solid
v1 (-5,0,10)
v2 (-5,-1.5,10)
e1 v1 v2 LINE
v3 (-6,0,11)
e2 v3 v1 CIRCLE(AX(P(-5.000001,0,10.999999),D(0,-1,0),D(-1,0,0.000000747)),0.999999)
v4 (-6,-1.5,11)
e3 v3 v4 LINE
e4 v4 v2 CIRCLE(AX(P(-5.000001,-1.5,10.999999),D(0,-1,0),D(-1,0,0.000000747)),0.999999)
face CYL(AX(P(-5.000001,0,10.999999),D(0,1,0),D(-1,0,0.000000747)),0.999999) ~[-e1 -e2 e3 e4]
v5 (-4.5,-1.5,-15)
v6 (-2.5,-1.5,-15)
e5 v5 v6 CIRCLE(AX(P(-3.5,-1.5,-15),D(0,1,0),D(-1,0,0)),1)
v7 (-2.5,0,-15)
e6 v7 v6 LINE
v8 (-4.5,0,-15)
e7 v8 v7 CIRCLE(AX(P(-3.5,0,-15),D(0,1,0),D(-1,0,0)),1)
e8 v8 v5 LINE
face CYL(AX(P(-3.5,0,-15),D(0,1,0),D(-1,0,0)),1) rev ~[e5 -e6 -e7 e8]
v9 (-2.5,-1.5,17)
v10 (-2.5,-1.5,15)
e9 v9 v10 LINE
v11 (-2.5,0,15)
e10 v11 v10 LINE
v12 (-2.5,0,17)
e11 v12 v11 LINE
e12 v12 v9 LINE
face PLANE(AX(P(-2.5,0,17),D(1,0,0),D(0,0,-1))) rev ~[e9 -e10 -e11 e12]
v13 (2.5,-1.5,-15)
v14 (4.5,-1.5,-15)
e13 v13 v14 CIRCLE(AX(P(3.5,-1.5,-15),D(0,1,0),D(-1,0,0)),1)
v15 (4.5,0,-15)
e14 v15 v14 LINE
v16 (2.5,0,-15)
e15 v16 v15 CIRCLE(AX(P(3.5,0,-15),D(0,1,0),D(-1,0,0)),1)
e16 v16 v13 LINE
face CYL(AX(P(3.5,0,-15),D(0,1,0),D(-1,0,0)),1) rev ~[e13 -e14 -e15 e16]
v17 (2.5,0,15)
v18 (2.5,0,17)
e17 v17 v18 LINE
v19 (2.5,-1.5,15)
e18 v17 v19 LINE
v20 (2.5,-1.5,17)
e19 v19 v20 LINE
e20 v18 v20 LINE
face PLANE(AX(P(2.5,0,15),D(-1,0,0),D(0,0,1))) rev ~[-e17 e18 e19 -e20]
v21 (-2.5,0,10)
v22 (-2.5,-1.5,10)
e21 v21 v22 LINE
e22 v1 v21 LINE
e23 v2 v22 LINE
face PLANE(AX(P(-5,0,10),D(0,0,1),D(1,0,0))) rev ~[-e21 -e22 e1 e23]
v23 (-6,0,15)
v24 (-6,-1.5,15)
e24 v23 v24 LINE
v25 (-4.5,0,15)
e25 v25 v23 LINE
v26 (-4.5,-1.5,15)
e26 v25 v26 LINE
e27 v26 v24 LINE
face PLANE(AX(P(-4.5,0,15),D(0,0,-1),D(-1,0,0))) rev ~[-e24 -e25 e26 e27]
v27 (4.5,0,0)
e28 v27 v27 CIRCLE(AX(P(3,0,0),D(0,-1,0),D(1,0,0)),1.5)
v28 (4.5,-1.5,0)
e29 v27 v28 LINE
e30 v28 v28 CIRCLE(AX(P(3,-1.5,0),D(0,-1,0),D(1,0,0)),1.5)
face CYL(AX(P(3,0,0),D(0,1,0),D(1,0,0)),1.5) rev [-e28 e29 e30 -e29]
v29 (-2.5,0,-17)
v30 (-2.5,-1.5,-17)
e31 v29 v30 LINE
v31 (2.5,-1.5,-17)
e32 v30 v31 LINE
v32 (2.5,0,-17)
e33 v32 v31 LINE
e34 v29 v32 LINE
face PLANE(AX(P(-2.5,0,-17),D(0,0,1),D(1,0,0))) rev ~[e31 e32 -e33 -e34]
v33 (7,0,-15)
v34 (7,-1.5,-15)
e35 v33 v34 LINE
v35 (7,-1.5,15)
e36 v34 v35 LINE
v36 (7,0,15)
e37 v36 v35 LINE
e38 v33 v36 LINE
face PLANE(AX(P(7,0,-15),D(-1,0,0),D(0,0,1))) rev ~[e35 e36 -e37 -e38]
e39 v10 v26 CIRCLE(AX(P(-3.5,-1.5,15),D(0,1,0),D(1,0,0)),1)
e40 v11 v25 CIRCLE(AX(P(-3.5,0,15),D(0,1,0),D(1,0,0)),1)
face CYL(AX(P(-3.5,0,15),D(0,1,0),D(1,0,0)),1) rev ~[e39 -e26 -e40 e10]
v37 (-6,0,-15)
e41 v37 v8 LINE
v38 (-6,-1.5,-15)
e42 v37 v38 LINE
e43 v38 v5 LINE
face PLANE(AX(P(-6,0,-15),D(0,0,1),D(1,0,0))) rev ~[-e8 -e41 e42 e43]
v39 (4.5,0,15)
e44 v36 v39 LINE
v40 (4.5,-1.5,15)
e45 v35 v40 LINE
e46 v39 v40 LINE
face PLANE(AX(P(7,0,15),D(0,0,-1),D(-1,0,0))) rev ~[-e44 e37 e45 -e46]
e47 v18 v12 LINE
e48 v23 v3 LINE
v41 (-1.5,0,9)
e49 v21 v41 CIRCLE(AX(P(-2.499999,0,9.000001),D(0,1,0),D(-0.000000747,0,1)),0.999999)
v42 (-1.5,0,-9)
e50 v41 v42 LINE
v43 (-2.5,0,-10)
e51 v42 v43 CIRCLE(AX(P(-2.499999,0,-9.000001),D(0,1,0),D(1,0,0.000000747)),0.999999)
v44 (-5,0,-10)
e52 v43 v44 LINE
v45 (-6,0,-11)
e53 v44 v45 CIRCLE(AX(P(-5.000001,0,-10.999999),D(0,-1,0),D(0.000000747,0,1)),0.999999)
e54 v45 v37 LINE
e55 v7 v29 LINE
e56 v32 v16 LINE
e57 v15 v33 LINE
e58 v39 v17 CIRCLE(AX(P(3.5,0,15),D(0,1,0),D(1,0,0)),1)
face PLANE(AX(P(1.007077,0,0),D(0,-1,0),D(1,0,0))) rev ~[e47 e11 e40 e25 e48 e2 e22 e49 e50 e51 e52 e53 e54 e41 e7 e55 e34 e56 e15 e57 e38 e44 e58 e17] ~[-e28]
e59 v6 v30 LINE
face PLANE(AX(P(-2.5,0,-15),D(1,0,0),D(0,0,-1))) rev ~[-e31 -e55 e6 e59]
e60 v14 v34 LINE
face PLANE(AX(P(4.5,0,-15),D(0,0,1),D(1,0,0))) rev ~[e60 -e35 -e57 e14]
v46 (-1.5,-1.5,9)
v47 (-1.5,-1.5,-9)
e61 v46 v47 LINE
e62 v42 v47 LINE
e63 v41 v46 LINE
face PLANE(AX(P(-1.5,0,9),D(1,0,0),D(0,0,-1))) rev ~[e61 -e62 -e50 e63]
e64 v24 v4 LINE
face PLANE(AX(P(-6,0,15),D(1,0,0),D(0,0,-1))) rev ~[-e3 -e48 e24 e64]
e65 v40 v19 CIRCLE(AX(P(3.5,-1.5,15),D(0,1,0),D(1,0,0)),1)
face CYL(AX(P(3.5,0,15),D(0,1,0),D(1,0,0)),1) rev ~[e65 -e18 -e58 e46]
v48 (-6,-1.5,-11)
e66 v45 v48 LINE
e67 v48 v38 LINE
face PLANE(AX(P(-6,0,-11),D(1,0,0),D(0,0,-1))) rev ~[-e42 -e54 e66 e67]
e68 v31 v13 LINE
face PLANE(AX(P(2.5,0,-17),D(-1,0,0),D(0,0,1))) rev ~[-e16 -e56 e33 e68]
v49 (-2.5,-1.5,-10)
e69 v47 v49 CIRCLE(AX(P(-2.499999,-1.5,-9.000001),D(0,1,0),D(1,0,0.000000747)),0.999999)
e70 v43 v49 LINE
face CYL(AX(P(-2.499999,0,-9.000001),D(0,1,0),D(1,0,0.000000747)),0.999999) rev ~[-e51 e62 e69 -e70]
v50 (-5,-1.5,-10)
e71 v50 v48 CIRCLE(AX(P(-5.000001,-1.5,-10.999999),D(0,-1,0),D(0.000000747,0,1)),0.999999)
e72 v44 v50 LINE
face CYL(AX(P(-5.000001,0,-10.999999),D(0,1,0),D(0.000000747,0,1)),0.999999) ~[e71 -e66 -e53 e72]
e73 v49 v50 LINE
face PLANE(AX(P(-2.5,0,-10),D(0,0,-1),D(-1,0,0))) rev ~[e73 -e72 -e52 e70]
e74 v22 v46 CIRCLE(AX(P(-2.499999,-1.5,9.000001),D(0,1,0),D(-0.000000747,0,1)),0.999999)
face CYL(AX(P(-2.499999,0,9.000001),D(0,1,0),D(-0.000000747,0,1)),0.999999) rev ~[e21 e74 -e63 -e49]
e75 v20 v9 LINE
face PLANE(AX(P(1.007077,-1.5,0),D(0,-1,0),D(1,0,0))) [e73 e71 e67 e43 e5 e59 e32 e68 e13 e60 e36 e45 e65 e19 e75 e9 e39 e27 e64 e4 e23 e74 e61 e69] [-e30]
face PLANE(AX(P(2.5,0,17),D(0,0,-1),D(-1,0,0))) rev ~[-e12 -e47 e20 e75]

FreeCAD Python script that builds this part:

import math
import FreeCAD as App
import Part
import Sketcher
from FreeCAD import Vector

doc = App.newDocument("Part")
body = doc.addObject("PartDesign::Body", "Body")

# Sketch on XZ plane
sketch1 = body.newObject("Sketcher::SketchObject", "Sketch")
sketch1.AttachmentSupport = (doc.getObject("XZ_Plane"), [""])
sketch1.MapMode = "FlatFace"
sketch1.addGeometry([
    Part.LineSegment(Vector(-4.5, 15, 0), Vector(-6, 15, 0)),  # 0
    Part.LineSegment(Vector(-6, 15, 0), Vector(-6, 11, 0)),  # 1
    Part.ArcOfCircle(Part.Circle(Vector(-5.000001, 10.999999, 0), Vector(0, 0, 1), 0.999999), math.radians(179.999957), math.radians(270.000043)),  # 2
    Part.LineSegment(Vector(-5, 10, 0), Vector(-2.5, 10, 0)),  # 3
    Part.ArcOfCircle(Part.Circle(Vector(-2.499999, 9.000001, 0), Vector(0, 0, 1), 0.999999), math.radians(-0.000043), math.radians(90.000043)),  # 4
    Part.LineSegment(Vector(-1.5, 9, 0), Vector(-1.5, -9, 0)),  # 5
    Part.ArcOfCircle(Part.Circle(Vector(-2.499999, -9.000001, 0), Vector(0, 0, 1), 0.999999), math.radians(-90.000043), math.radians(0.000043)),  # 6
    Part.LineSegment(Vector(-2.5, -10, 0), Vector(-5, -10, 0)),  # 7
    Part.ArcOfCircle(Part.Circle(Vector(-5.000001, -10.999999, 0), Vector(0, 0, 1), 0.999999), math.radians(89.999957), math.radians(180.000043)),  # 8
    Part.LineSegment(Vector(-6, -11, 0), Vector(-6, -15, 0)),  # 9
    Part.LineSegment(Vector(-6, -15, 0), Vector(-4.5, -15, 0)),  # 10
    Part.ArcOfCircle(Part.Circle(Vector(-3.5, -15, 0), Vector(0, 0, 1), 1), math.radians(0), math.radians(180)),  # 11
    Part.LineSegment(Vector(-2.5, -15, 0), Vector(-2.5, -17, 0)),  # 12
    Part.LineSegment(Vector(-2.5, -17, 0), Vector(2.5, -17, 0)),  # 13
    Part.LineSegment(Vector(2.5, -17, 0), Vector(2.5, -15, 0)),  # 14
    Part.ArcOfCircle(Part.Circle(Vector(3.5, -15, 0), Vector(0, 0, 1), 1), math.radians(0), math.radians(180)),  # 15
    Part.LineSegment(Vector(4.5, -15, 0), Vector(7, -15, 0)),  # 16
    Part.LineSegment(Vector(7, -15, 0), Vector(7, 15, 0)),  # 17
    Part.LineSegment(Vector(7, 15, 0), Vector(4.5, 15, 0)),  # 18
    Part.ArcOfCircle(Part.Circle(Vector(3.5, 15, 0), Vector(0, 0, 1), 1), math.radians(180), math.radians(360)),  # 19
    Part.LineSegment(Vector(2.5, 15, 0), Vector(2.5, 17, 0)),  # 20
    Part.LineSegment(Vector(2.5, 17, 0), Vector(-2.5, 17, 0)),  # 21
    Part.LineSegment(Vector(-2.5, 17, 0), Vector(-2.5, 15, 0)),  # 22
    Part.ArcOfCircle(Part.Circle(Vector(-3.5, 15, 0), Vector(0, 0, 1), 1), math.radians(180), math.radians(360)),  # 23
    Part.Circle(Vector(3, 0, 0), Vector(0, 0, 1), 1.5),  # 24
], False)
sketch1.addConstraint([
    Sketcher.Constraint("Coincident", 0, 2, 1, 1),
    Sketcher.Constraint("Tangent", 1, 2, 2, 1),
    Sketcher.Constraint("Tangent", 2, 2, 3, 1),
    Sketcher.Constraint("Tangent", 3, 2, 4, 2),
    Sketcher.Constraint("Tangent", 4, 1, 5, 1),
    Sketcher.Constraint("Tangent", 5, 2, 6, 2),
    Sketcher.Constraint("Tangent", 6, 1, 7, 1),
    Sketcher.Constraint("Tangent", 7, 2, 8, 1),
    Sketcher.Constraint("Tangent", 8, 2, 9, 1),
    Sketcher.Constraint("Coincident", 9, 2, 10, 1),
    Sketcher.Constraint("Coincident", 10, 2, 11, 2),
    Sketcher.Constraint("Tangent", 11, 1, 12, 1),
    Sketcher.Constraint("Coincident", 12, 2, 13, 1),
    Sketcher.Constraint("Coincident", 13, 2, 14, 1),
    Sketcher.Constraint("Tangent", 14, 2, 15, 2),
    Sketcher.Constraint("Coincident", 15, 1, 16, 1),
    Sketcher.Constraint("Coincident", 16, 2, 17, 1),
    Sketcher.Constraint("Coincident", 17, 2, 18, 1),
    Sketcher.Constraint("Coincident", 18, 2, 19, 2),
    Sketcher.Constraint("Tangent", 19, 1, 20, 1),
    Sketcher.Constraint("Coincident", 20, 2, 21, 1),
    Sketcher.Constraint("Coincident", 21, 2, 22, 1),
    Sketcher.Constraint("Tangent", 22, 2, 23, 2),
    Sketcher.Constraint("Coincident", 23, 1, 0, 1),
    Sketcher.Constraint("Horizontal", 0),
    Sketcher.Constraint("Vertical", 1),
    Sketcher.Constraint("Horizontal", 3),
    Sketcher.Constraint("Vertical", 5),
    Sketcher.Constraint("Horizontal", 7),
    Sketcher.Constraint("Vertical", 9),
    Sketcher.Constraint("Horizontal", 10),
    Sketcher.Constraint("Vertical", 12),
    Sketcher.Constraint("Horizontal", 13),
    Sketcher.Constraint("Vertical", 14),
    Sketcher.Constraint("Horizontal", 16),
    Sketcher.Constraint("Vertical", 17),
    Sketcher.Constraint("Horizontal", 18),
    Sketcher.Constraint("Vertical", 20),
    Sketcher.Constraint("Horizontal", 21),
    Sketcher.Constraint("Vertical", 22),
    Sketcher.Constraint("Equal", 2, 4),
    Sketcher.Constraint("Equal", 4, 6),
    Sketcher.Constraint("Equal", 6, 8),
    Sketcher.Constraint("Equal", 8, 11),
    Sketcher.Constraint("Equal", 11, 15),
    Sketcher.Constraint("Equal", 15, 19),
    Sketcher.Constraint("Equal", 19, 23),
    Sketcher.Constraint("Symmetric", 11, 3, 19, 3, -1, 1),
    Sketcher.Constraint("Symmetric", 15, 3, 23, 3, -1, 1),
    Sketcher.Constraint("Symmetric", 11, 3, 15, 3, -2),
    Sketcher.Constraint("Symmetric", 2, 3, 8, 3, -1),
    Sketcher.Constraint("PointOnObject", 24, 3, -1),
    Sketcher.Constraint("Horizontal", 23, 3, 0, 2),
    Sketcher.Constraint("Horizontal", 15, 3, 9, 2),
    Sketcher.Constraint("Horizontal", 14, 2, 15, 1),
    Sketcher.Constraint("Horizontal", 0, 2, 17, 2),
    Sketcher.Constraint("Vertical", 6, 1, 11, 1),
    Sketcher.Constraint("Equal", 7, 16),
    Sketcher.Constraint("Equal", 14, 20),
    Sketcher.Constraint("Diameter", 24, 3.0),
    Sketcher.Constraint("Radius", 2, 0.999999),
    Sketcher.Constraint("DistanceX", 13, 1, 13, 2, 5.0),
    Sketcher.Constraint("DistanceY", 1, 2, 1, 1, 4.0),
    Sketcher.Constraint("DistanceY", 5, 2, 5, 1, 18.0),
    Sketcher.Constraint("DistanceY", 12, 2, 12, 1, 2.0),
    Sketcher.Constraint("DistanceX", 0, 2, 0, 1, 1.5),
    Sketcher.Constraint("DistanceX", -1, 1, 24, 3, 3.0),
])
pad1 = body.newObject("PartDesign::Pad", "Pad")
pad1.Profile = sketch1
pad1.Length = 1.5

doc.recompute()
